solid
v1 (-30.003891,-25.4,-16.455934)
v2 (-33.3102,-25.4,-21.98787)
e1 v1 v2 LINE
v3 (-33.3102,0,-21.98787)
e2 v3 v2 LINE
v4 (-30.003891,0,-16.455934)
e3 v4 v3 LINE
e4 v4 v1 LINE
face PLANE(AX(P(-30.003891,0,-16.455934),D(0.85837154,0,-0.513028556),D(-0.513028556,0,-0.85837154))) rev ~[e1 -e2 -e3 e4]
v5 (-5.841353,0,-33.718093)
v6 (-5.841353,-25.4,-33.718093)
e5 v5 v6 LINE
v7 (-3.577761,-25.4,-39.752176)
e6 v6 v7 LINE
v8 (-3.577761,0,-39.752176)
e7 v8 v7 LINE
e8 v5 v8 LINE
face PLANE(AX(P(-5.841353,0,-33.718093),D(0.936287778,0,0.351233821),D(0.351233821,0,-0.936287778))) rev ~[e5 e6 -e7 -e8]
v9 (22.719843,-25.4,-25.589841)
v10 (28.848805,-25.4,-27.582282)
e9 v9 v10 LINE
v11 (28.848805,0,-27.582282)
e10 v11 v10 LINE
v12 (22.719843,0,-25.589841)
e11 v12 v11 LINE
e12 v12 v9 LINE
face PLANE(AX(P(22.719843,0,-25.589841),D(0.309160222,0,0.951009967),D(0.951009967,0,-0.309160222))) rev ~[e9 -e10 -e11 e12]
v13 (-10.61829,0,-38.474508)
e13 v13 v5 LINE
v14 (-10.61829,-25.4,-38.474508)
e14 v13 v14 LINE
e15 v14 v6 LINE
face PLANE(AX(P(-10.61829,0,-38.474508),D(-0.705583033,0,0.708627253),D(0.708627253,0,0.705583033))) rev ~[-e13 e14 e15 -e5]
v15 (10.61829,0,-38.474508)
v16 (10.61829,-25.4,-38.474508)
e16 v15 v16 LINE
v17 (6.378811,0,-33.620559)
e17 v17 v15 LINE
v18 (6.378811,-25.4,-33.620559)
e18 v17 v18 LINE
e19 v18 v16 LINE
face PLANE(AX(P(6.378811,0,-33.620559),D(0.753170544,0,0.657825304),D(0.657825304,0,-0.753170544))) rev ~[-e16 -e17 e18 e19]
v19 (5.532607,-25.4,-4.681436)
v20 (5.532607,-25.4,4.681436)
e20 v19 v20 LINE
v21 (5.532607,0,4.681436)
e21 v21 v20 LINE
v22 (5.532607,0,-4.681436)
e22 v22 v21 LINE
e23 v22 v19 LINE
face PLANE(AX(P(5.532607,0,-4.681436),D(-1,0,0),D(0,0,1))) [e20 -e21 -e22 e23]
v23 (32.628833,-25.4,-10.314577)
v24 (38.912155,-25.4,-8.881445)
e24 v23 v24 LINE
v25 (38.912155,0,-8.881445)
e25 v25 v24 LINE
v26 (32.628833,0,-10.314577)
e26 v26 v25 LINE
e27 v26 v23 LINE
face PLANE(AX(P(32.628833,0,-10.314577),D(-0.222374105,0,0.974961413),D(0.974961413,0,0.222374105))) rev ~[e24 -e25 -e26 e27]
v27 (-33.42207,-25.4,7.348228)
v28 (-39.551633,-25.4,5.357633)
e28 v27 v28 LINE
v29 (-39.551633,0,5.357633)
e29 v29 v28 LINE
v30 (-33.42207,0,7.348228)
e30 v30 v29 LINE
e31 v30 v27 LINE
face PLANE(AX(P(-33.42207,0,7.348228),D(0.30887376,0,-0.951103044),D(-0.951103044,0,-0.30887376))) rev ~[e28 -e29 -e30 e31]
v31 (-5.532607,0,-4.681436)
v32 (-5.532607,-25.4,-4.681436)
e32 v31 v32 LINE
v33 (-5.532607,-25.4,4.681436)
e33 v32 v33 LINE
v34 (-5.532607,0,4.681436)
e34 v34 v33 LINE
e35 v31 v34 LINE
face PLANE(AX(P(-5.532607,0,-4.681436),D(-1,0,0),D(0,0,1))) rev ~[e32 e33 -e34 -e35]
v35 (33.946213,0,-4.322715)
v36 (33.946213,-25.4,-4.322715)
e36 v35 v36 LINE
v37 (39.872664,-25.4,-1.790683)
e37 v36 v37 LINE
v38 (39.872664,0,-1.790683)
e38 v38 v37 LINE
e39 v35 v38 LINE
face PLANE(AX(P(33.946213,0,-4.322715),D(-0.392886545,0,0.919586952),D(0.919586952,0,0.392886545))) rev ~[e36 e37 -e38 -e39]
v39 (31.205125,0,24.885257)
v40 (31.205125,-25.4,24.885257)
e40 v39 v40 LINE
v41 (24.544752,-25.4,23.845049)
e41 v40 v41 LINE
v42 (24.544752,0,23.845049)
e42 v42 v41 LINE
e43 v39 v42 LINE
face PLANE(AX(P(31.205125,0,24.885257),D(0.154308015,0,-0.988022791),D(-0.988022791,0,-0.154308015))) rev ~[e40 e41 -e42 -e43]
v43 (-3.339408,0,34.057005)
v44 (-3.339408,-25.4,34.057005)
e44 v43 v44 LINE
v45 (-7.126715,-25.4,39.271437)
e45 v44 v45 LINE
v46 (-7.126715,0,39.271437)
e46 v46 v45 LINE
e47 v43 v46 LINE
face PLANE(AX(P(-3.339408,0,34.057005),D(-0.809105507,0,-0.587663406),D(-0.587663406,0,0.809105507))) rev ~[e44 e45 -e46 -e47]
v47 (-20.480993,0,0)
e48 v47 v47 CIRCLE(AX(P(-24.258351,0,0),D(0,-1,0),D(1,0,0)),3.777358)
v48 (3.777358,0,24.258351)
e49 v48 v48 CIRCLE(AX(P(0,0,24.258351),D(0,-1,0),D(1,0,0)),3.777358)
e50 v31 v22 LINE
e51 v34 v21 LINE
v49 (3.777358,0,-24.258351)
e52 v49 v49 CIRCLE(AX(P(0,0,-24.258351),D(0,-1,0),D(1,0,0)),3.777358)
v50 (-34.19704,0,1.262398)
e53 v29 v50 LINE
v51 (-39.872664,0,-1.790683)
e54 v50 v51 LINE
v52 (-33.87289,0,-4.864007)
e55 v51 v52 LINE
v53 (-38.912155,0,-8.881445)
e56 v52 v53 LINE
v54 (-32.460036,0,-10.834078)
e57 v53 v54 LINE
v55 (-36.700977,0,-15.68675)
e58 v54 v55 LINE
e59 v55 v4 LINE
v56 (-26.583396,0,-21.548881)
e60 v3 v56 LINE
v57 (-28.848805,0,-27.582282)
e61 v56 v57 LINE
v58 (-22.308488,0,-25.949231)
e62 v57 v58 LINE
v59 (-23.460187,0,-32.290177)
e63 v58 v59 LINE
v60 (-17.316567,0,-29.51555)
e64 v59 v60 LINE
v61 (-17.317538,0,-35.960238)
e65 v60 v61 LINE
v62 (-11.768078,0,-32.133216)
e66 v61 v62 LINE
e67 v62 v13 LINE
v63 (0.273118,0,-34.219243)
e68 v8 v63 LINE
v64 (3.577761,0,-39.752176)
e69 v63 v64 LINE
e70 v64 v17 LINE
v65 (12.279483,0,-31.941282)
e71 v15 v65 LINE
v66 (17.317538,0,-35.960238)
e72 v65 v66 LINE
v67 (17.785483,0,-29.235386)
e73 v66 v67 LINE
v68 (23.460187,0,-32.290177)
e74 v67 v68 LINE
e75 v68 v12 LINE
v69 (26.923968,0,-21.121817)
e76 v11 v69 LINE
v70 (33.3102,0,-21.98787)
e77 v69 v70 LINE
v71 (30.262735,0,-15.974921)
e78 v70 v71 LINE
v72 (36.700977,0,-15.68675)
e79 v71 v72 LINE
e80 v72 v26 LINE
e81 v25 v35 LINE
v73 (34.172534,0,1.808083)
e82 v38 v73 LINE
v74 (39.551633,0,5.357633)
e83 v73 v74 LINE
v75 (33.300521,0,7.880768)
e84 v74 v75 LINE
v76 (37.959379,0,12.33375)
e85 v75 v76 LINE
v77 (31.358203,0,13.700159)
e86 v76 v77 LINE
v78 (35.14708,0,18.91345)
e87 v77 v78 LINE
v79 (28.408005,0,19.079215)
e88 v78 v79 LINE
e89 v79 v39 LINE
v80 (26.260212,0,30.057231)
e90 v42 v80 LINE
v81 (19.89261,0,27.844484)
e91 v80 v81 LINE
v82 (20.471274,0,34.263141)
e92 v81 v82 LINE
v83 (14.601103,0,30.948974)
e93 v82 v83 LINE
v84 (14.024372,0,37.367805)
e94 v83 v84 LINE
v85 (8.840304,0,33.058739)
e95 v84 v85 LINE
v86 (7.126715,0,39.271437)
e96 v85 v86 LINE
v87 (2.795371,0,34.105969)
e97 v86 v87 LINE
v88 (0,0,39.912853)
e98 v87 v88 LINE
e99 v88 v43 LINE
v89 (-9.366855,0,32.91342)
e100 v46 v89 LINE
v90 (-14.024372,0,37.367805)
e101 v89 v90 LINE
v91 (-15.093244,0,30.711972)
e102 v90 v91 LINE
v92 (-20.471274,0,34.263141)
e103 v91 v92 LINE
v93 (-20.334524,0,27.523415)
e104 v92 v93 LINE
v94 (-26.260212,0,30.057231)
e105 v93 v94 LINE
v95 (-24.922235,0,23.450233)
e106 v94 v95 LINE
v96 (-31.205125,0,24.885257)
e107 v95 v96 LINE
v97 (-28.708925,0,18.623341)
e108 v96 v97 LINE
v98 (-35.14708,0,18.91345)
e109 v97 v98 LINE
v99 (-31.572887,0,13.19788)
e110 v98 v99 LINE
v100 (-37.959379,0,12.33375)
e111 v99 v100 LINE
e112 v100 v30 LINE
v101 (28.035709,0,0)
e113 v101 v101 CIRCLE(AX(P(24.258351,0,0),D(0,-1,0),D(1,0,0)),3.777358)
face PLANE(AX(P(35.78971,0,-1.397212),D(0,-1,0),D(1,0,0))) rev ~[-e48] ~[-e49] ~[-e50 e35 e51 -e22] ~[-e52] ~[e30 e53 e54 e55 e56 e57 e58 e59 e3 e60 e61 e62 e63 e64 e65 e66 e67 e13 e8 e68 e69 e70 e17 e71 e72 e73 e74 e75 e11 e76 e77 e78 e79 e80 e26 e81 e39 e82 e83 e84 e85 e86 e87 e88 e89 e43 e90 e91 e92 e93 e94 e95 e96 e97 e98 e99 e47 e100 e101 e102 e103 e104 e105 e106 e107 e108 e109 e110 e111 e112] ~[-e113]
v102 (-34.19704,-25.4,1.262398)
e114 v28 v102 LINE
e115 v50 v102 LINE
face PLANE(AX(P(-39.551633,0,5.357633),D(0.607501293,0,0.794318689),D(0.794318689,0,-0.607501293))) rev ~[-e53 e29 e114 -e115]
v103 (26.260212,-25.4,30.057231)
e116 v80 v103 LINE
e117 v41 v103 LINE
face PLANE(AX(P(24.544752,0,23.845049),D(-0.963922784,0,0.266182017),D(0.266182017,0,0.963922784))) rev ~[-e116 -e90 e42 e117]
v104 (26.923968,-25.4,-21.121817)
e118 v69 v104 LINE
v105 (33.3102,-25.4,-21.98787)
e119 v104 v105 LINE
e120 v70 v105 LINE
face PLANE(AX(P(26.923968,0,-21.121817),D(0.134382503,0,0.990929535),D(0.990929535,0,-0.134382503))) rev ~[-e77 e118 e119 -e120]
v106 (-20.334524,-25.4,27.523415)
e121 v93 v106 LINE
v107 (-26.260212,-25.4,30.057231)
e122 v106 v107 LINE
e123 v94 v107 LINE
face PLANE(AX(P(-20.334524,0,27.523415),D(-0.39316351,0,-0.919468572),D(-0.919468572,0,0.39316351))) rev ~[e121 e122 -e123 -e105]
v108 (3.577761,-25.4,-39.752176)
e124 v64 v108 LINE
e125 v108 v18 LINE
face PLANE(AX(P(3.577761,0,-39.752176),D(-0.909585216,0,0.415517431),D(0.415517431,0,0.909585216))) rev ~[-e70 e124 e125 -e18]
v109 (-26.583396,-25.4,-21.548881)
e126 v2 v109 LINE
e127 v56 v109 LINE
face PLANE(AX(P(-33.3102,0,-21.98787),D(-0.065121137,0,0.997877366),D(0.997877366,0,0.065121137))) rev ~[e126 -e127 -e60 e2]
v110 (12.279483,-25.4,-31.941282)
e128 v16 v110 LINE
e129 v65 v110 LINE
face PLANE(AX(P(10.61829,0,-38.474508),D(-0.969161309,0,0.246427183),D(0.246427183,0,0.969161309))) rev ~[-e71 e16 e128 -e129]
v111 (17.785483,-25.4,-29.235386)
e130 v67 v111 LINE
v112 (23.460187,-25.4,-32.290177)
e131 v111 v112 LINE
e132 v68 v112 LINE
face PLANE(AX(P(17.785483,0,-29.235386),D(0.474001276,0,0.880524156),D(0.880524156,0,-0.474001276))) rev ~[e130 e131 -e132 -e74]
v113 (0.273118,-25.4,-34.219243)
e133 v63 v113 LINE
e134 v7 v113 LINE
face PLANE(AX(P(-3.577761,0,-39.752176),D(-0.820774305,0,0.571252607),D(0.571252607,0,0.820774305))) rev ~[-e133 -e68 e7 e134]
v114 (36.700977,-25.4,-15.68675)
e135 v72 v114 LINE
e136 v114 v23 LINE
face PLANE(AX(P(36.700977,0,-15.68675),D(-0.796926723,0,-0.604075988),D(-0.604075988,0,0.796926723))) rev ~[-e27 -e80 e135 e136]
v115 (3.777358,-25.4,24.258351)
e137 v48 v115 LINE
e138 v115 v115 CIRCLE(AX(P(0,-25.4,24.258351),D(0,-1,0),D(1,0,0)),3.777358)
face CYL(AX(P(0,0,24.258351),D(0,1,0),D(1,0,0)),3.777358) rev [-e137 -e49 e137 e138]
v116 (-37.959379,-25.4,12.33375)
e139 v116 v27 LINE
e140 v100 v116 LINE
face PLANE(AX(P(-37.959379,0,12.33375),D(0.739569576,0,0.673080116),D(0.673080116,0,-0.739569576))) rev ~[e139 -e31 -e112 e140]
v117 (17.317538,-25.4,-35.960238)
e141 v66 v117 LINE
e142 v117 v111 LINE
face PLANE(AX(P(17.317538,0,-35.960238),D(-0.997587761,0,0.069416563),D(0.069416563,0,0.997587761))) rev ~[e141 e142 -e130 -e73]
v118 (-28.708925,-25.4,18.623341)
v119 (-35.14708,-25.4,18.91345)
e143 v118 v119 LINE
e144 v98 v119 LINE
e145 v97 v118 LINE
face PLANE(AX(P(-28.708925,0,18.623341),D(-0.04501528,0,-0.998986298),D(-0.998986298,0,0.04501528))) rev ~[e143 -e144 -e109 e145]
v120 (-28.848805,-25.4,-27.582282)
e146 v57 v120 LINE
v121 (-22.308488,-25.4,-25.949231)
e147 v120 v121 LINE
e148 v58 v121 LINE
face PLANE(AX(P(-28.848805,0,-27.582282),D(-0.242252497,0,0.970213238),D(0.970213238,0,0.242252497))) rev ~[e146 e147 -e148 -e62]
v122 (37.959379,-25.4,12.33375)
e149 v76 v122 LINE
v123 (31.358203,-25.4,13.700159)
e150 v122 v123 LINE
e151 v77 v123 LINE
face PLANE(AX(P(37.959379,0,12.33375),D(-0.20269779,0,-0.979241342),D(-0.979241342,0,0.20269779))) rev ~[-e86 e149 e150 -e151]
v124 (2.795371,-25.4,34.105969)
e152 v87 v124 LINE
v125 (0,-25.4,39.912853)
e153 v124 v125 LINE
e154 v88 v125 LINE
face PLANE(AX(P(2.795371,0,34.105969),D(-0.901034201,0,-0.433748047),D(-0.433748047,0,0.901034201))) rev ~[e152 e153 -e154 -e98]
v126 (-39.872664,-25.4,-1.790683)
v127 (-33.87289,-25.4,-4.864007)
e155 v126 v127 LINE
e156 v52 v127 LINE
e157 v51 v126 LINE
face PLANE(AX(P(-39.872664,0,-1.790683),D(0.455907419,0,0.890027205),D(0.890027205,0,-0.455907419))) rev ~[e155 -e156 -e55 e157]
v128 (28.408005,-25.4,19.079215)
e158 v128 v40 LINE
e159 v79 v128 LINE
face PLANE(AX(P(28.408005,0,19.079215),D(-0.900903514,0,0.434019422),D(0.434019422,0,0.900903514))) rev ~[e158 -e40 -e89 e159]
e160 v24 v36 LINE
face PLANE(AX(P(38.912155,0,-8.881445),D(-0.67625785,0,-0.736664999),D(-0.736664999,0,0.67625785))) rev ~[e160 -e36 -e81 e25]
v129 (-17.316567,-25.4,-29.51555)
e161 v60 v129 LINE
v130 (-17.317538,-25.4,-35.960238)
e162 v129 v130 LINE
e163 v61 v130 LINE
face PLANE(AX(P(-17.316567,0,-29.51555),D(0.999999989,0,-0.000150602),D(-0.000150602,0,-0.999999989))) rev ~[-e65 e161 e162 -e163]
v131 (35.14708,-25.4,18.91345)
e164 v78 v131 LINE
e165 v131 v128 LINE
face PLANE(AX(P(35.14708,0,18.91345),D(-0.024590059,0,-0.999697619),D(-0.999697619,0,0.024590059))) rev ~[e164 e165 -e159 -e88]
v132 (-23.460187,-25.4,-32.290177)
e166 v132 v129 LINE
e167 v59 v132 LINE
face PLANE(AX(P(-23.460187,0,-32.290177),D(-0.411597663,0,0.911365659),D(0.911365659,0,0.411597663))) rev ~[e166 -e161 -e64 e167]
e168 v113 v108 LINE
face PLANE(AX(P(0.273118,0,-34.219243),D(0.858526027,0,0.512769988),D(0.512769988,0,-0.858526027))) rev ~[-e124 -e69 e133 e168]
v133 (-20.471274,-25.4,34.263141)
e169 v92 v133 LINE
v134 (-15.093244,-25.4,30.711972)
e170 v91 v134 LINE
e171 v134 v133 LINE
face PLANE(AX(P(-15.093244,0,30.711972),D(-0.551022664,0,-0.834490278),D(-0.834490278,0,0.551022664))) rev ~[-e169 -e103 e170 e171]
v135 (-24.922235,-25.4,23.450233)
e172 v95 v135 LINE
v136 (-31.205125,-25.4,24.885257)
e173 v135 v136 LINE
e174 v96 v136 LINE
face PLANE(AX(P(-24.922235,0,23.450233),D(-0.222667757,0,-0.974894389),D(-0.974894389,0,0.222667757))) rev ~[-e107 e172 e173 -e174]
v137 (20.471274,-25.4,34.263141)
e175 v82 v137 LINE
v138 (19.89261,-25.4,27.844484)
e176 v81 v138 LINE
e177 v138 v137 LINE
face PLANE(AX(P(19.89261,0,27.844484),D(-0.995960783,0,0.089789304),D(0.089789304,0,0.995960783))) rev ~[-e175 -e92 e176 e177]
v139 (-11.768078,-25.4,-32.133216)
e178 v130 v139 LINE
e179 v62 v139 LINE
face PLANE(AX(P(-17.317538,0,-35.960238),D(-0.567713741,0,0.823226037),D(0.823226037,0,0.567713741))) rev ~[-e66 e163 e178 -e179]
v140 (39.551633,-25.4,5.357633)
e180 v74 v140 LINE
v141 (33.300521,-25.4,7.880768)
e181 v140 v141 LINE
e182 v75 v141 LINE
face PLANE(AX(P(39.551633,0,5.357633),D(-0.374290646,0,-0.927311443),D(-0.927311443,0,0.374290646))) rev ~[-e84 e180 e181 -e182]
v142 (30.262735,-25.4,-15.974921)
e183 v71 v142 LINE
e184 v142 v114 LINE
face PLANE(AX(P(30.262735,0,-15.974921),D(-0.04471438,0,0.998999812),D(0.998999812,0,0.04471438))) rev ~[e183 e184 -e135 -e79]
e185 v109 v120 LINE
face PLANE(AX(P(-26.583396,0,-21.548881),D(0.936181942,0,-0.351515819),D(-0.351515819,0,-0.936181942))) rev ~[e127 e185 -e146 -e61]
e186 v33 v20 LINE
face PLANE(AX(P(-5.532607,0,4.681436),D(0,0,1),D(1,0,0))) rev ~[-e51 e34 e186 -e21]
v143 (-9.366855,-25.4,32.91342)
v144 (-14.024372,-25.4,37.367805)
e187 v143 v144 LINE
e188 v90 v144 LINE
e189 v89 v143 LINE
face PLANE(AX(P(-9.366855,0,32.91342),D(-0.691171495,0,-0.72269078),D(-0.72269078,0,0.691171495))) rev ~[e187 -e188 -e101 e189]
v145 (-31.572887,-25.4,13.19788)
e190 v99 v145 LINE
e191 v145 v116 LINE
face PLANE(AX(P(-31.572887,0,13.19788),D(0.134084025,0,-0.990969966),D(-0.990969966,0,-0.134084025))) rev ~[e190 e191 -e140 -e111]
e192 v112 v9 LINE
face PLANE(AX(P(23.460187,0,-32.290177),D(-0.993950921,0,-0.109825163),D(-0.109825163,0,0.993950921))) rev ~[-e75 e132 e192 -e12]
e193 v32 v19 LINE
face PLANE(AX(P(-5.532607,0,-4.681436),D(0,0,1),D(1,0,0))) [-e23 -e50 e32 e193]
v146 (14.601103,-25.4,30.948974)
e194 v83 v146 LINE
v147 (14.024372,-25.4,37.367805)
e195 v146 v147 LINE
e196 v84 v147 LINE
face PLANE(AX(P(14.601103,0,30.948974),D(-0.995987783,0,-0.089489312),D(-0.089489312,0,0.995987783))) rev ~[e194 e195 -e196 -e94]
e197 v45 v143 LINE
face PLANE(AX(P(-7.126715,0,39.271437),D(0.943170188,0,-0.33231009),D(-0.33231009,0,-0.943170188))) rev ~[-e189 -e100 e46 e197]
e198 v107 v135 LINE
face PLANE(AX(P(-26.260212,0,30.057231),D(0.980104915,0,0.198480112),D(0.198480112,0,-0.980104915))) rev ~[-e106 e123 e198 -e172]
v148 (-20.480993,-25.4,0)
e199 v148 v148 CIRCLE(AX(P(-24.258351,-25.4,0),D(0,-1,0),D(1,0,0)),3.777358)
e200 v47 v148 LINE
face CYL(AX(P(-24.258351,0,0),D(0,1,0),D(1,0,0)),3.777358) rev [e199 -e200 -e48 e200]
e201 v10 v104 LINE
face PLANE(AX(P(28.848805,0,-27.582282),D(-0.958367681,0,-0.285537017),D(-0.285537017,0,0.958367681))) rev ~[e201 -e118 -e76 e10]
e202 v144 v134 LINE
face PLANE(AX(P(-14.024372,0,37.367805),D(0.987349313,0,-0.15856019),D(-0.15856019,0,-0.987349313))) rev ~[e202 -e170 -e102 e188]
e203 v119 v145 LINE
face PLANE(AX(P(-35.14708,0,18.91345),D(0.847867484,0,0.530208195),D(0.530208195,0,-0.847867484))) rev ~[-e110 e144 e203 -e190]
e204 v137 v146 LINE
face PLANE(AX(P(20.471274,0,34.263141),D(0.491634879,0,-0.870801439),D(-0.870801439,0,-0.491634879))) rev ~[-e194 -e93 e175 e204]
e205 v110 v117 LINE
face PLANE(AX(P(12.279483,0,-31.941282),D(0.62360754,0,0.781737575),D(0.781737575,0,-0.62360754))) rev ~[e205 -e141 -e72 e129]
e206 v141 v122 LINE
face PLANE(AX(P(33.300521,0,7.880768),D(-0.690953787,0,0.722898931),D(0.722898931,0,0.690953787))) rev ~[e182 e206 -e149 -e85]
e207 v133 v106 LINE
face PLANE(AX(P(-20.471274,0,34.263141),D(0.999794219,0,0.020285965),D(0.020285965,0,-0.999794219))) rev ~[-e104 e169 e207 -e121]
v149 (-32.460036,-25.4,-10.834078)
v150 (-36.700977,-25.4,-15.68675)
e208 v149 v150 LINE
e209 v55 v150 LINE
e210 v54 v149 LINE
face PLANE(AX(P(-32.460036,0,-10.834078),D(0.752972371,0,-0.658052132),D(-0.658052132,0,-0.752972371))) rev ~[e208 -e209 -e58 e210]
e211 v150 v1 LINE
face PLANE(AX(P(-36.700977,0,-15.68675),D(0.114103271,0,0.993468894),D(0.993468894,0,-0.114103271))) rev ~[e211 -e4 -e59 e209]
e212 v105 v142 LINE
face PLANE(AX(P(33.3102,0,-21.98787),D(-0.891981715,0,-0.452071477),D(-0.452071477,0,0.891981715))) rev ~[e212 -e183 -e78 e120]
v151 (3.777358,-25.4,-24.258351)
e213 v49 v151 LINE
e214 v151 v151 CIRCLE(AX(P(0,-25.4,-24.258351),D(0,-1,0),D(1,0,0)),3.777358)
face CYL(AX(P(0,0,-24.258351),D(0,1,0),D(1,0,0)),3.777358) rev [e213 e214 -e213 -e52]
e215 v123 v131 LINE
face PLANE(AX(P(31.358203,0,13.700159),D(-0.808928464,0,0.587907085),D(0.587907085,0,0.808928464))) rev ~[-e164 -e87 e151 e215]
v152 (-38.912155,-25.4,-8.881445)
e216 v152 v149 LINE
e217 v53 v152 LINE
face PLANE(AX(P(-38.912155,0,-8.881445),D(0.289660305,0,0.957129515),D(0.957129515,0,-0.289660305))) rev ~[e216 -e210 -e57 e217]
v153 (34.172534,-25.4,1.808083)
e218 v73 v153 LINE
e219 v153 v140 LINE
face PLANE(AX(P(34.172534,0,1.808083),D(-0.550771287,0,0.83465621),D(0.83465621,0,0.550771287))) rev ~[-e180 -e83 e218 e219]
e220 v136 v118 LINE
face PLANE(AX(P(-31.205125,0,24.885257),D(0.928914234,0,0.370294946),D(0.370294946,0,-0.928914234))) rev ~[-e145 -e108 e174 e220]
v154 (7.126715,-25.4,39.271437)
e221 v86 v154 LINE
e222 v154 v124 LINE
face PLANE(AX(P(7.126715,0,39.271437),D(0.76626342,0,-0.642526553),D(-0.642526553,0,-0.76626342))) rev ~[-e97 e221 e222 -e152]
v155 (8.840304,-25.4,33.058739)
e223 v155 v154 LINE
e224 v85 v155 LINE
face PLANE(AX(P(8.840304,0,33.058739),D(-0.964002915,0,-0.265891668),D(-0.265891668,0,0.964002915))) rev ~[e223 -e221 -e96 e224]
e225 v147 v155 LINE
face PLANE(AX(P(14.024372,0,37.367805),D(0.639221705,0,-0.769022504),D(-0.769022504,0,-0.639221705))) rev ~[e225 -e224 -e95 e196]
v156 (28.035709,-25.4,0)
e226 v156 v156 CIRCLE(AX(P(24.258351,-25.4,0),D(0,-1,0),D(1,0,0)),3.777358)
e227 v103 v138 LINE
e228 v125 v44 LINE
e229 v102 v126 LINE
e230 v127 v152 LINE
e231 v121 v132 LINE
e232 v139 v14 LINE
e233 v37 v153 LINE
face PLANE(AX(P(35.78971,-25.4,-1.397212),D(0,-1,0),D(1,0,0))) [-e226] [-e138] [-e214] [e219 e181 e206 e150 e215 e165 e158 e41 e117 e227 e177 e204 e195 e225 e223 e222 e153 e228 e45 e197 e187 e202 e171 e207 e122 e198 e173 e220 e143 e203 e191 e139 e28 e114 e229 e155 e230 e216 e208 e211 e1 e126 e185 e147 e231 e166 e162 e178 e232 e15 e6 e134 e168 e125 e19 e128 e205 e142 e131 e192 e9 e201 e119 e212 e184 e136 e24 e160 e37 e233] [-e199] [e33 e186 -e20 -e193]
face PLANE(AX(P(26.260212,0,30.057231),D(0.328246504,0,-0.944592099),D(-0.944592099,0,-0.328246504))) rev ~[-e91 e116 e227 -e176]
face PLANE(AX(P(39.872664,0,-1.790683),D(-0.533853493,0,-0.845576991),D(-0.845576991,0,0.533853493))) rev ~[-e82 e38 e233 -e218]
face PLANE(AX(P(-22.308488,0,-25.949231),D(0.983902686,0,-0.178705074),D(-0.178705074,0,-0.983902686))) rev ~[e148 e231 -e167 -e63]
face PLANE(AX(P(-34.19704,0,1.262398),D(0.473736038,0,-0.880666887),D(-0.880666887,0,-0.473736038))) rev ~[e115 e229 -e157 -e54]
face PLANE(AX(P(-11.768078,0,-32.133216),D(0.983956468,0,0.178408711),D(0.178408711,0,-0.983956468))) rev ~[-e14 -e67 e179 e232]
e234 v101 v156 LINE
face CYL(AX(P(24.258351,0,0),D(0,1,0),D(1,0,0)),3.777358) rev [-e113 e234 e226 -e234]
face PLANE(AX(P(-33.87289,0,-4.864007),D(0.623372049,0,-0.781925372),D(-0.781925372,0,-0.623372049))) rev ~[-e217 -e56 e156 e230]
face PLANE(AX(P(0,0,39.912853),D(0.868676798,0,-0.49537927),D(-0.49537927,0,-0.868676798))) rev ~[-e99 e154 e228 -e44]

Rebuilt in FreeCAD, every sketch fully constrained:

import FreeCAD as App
import Part
import Sketcher
from FreeCAD import Vector
Q = App.Units.Quantity

doc = App.newDocument("Part")
params = doc.addObject("Spreadsheet::Sheet", "Params")
for row, (alias, value) in enumerate([
    ("pad1_length", "1 in"),
], start=1):
    params.set(f"A{row}", alias)
    params.set(f"B{row}", "=" + value)
    params.setAlias(f"B{row}", alias)

body = doc.addObject("PartDesign::Body", "Body")

# Sketch on XZ plane
sketch1 = body.newObject("Sketcher::SketchObject", "Sketch")
sketch1.AttachmentSupport = (doc.getObject("XZ_Plane"), [""])
sketch1.MapMode = "FlatFace"
sketch1.addGeometry([
    Part.LineSegment(Vector(-39.6, 5.4, 0), Vector(-34.2, 1.3, 0)),  # 0
    Part.LineSegment(Vector(-34.2, 1.3, 0), Vector(-39.9, -1.8, 0)),  # 1
    Part.LineSegment(Vector(-39.9, -1.8, 0), Vector(-33.9, -4.9, 0)),  # 2
    Part.LineSegment(Vector(-33.9, -4.9, 0), Vector(-38.9, -8.9, 0)),  # 3
    Part.LineSegment(Vector(-38.9, -8.9, 0), Vector(-32.5, -10.8, 0)),  # 4
    Part.LineSegment(Vector(-32.5, -10.8, 0), Vector(-36.7, -15.7, 0)),  # 5
    Part.LineSegment(Vector(-36.7, -15.7, 0), Vector(-30, -16.5, 0)),  # 6
    Part.LineSegment(Vector(-30, -16.5, 0), Vector(-33.3, -22, 0)),  # 7
    Part.LineSegment(Vector(-33.3, -22, 0), Vector(-26.6, -21.5, 0)),  # 8
    Part.LineSegment(Vector(-26.6, -21.5, 0), Vector(-28.8, -27.6, 0)),  # 9
    Part.LineSegment(Vector(-28.8, -27.6, 0), Vector(-22.3, -25.9, 0)),  # 10
    Part.LineSegment(Vector(-22.3, -25.9, 0), Vector(-23.5, -32.3, 0)),  # 11
    Part.LineSegment(Vector(-23.5, -32.3, 0), Vector(-17.3, -29.5, 0)),  # 12
    Part.LineSegment(Vector(-17.3, -29.5, 0), Vector(-17.3, -36, 0)),  # 13
    Part.LineSegment(Vector(-17.3, -36, 0), Vector(-11.8, -32.1, 0)),  # 14
    Part.LineSegment(Vector(-11.8, -32.1, 0), Vector(-10.6, -38.5, 0)),  # 15
    Part.LineSegment(Vector(-10.6, -38.5, 0), Vector(-5.8, -33.7, 0)),  # 16
    Part.LineSegment(Vector(-5.8, -33.7, 0), Vector(-3.6, -39.8, 0)),  # 17
    Part.LineSegment(Vector(-3.6, -39.8, 0), Vector(0.3, -34.2, 0)),  # 18
    Part.LineSegment(Vector(0.3, -34.2, 0), Vector(3.6, -39.8, 0)),  # 19
    Part.LineSegment(Vector(3.6, -39.8, 0), Vector(6.4, -33.6, 0)),  # 20
    Part.LineSegment(Vector(6.4, -33.6, 0), Vector(10.6, -38.5, 0)),  # 21
    Part.LineSegment(Vector(10.6, -38.5, 0), Vector(12.3, -31.9, 0)),  # 22
    Part.LineSegment(Vector(12.3, -31.9, 0), Vector(17.3, -36, 0)),  # 23
    Part.LineSegment(Vector(17.3, -36, 0), Vector(17.8, -29.2, 0)),  # 24
    Part.LineSegment(Vector(17.8, -29.2, 0), Vector(23.5, -32.3, 0)),  # 25
    Part.LineSegment(Vector(23.5, -32.3, 0), Vector(22.7, -25.6, 0)),  # 26
    Part.LineSegment(Vector(22.7, -25.6, 0), Vector(28.8, -27.6, 0)),  # 27
    Part.LineSegment(Vector(28.8, -27.6, 0), Vector(26.9, -21.1, 0)),  # 28
    Part.LineSegment(Vector(26.9, -21.1, 0), Vector(33.3, -22, 0)),  # 29
    Part.LineSegment(Vector(33.3, -22, 0), Vector(30.3, -16, 0)),  # 30
    Part.LineSegment(Vector(30.3, -16, 0), Vector(36.7, -15.7, 0)),  # 31
    Part.LineSegment(Vector(36.7, -15.7, 0), Vector(32.6, -10.3, 0)),  # 32
    Part.LineSegment(Vector(32.6, -10.3, 0), Vector(38.9, -8.9, 0)),  # 33
    Part.LineSegment(Vector(38.9, -8.9, 0), Vector(33.9, -4.3, 0)),  # 34
    Part.LineSegment(Vector(33.9, -4.3, 0), Vector(39.9, -1.8, 0)),  # 35
    Part.LineSegment(Vector(39.9, -1.8, 0), Vector(34.2, 1.8, 0)),  # 36
    Part.LineSegment(Vector(34.2, 1.8, 0), Vector(39.6, 5.4, 0)),  # 37
    Part.LineSegment(Vector(39.6, 5.4, 0), Vector(33.3, 7.9, 0)),  # 38
    Part.LineSegment(Vector(33.3, 7.9, 0), Vector(38, 12.3, 0)),  # 39
    Part.LineSegment(Vector(38, 12.3, 0), Vector(31.4, 13.7, 0)),  # 40
    Part.LineSegment(Vector(31.4, 13.7, 0), Vector(35.1, 18.9, 0)),  # 41
    Part.LineSegment(Vector(35.1, 18.9, 0), Vector(28.4, 19.1, 0)),  # 42
    Part.LineSegment(Vector(28.4, 19.1, 0), Vector(31.2, 24.9, 0)),  # 43
    Part.LineSegment(Vector(31.2, 24.9, 0), Vector(24.5, 23.8, 0)),  # 44
    Part.LineSegment(Vector(24.5, 23.8, 0), Vector(26.3, 30.1, 0)),  # 45
    Part.LineSegment(Vector(26.3, 30.1, 0), Vector(19.9, 27.8, 0)),  # 46
    Part.LineSegment(Vector(19.9, 27.8, 0), Vector(20.5, 34.3, 0)),  # 47
    Part.LineSegment(Vector(20.5, 34.3, 0), Vector(14.6, 30.9, 0)),  # 48
    Part.LineSegment(Vector(14.6, 30.9, 0), Vector(14, 37.4, 0)),  # 49
    Part.LineSegment(Vector(14, 37.4, 0), Vector(8.8, 33.1, 0)),  # 50
    Part.LineSegment(Vector(8.8, 33.1, 0), Vector(7.1, 39.3, 0)),  # 51
    Part.LineSegment(Vector(7.1, 39.3, 0), Vector(2.8, 34.1, 0)),  # 52
    Part.LineSegment(Vector(2.8, 34.1, 0), Vector(0, 39.9, 0)),  # 53
    Part.LineSegment(Vector(0, 39.9, 0), Vector(-3.3, 34.1, 0)),  # 54
    Part.LineSegment(Vector(-3.3, 34.1, 0), Vector(-7.1, 39.3, 0)),  # 55
    Part.LineSegment(Vector(-7.1, 39.3, 0), Vector(-9.4, 32.9, 0)),  # 56
    Part.LineSegment(Vector(-9.4, 32.9, 0), Vector(-14, 37.4, 0)),  # 57
    Part.LineSegment(Vector(-14, 37.4, 0), Vector(-15.1, 30.7, 0)),  # 58
    Part.LineSegment(Vector(-15.1, 30.7, 0), Vector(-20.5, 34.3, 0)),  # 59
    Part.LineSegment(Vector(-20.5, 34.3, 0), Vector(-20.3, 27.5, 0)),  # 60
    Part.LineSegment(Vector(-20.3, 27.5, 0), Vector(-26.3, 30.1, 0)),  # 61
    Part.LineSegment(Vector(-26.3, 30.1, 0), Vector(-24.9, 23.5, 0)),  # 62
    Part.LineSegment(Vector(-24.9, 23.5, 0), Vector(-31.2, 24.9, 0)),  # 63
    Part.LineSegment(Vector(-31.2, 24.9, 0), Vector(-28.7, 18.6, 0)),  # 64
    Part.LineSegment(Vector(-28.7, 18.6, 0), Vector(-35.1, 18.9, 0)),  # 65
    Part.LineSegment(Vector(-35.1, 18.9, 0), Vector(-31.6, 13.2, 0)),  # 66
    Part.LineSegment(Vector(-31.6, 13.2, 0), Vector(-38, 12.3, 0)),  # 67
    Part.LineSegment(Vector(-38, 12.3, 0), Vector(-33.4, 7.3, 0)),  # 68
    Part.LineSegment(Vector(-33.4, 7.3, 0), Vector(-39.6, 5.4, 0)),  # 69
    Part.Circle(Vector(0, -24.3, 0), Vector(0, 0, 1), 3.8),  # 70
    Part.Circle(Vector(-24.3, 0, 0), Vector(0, 0, 1), 3.8),  # 71
    Part.LineSegment(Vector(5.5, -4.7, 0), Vector(-5.5, -4.7, 0)),  # 72
    Part.LineSegment(Vector(-5.5, -4.7, 0), Vector(-5.5, 4.7, 0)),  # 73
    Part.LineSegment(Vector(-5.5, 4.7, 0), Vector(5.5, 4.7, 0)),  # 74
    Part.LineSegment(Vector(5.5, 4.7, 0), Vector(5.5, -4.7, 0)),  # 75
    Part.Circle(Vector(24.3, 0, 0), Vector(0, 0, 1), 3.8),  # 76
    Part.Circle(Vector(0, 24.3, 0), Vector(0, 0, 1), 3.8),  # 77
], False)
sketch1.addConstraint([
    Sketcher.Constraint("Coincident", 0, 2, 1, 1),
    Sketcher.Constraint("Coincident", 1, 2, 2, 1),
    Sketcher.Constraint("Coincident", 2, 2, 3, 1),
    Sketcher.Constraint("Coincident", 3, 2, 4, 1),
    Sketcher.Constraint("Coincident", 4, 2, 5, 1),
    Sketcher.Constraint("Coincident", 5, 2, 6, 1),
    Sketcher.Constraint("Coincident", 6, 2, 7, 1),
    Sketcher.Constraint("Coincident", 7, 2, 8, 1),
    Sketcher.Constraint("Coincident", 8, 2, 9, 1),
    Sketcher.Constraint("Coincident", 9, 2, 10, 1),
    Sketcher.Constraint("Coincident", 10, 2, 11, 1),
    Sketcher.Constraint("Coincident", 11, 2, 12, 1),
    Sketcher.Constraint("Coincident", 12, 2, 13, 1),
    Sketcher.Constraint("Coincident", 13, 2, 14, 1),
    Sketcher.Constraint("Coincident", 14, 2, 15, 1),
    Sketcher.Constraint("Coincident", 15, 2, 16, 1),
    Sketcher.Constraint("Coincident", 16, 2, 17, 1),
    Sketcher.Constraint("Coincident", 17, 2, 18, 1),
    Sketcher.Constraint("Coincident", 18, 2, 19, 1),
    Sketcher.Constraint("Coincident", 19, 2, 20, 1),
    Sketcher.Constraint("Coincident", 20, 2, 21, 1),
    Sketcher.Constraint("Coincident", 21, 2, 22, 1),
    Sketcher.Constraint("Coincident", 22, 2, 23, 1),
    Sketcher.Constraint("Coincident", 23, 2, 24, 1),
    Sketcher.Constraint("Coincident", 24, 2, 25, 1),
    Sketcher.Constraint("Coincident", 25, 2, 26, 1),
    Sketcher.Constraint("Coincident", 26, 2, 27, 1),
    Sketcher.Constraint("Coincident", 27, 2, 28, 1),
    Sketcher.Constraint("Coincident", 28, 2, 29, 1),
    Sketcher.Constraint("Coincident", 29, 2, 30, 1),
    Sketcher.Constraint("Coincident", 30, 2, 31, 1),
    Sketcher.Constraint("Coincident", 31, 2, 32, 1),
    Sketcher.Constraint("Coincident", 32, 2, 33, 1),
    Sketcher.Constraint("Coincident", 33, 2, 34, 1),
    Sketcher.Constraint("Coincident", 34, 2, 35, 1),
    Sketcher.Constraint("Coincident", 35, 2, 36, 1),
    Sketcher.Constraint("Coincident", 36, 2, 37, 1),
    Sketcher.Constraint("Coincident", 37, 2, 38, 1),
    Sketcher.Constraint("Coincident", 38, 2, 39, 1),
    Sketcher.Constraint("Coincident", 39, 2, 40, 1),
    Sketcher.Constraint("Coincident", 40, 2, 41, 1),
    Sketcher.Constraint("Coincident", 41, 2, 42, 1),
    Sketcher.Constraint("Coincident", 42, 2, 43, 1),
    Sketcher.Constraint("Coincident", 43, 2, 44, 1),
    Sketcher.Constraint("Coincident", 44, 2, 45, 1),
    Sketcher.Constraint("Coincident", 45, 2, 46, 1),
    Sketcher.Constraint("Coincident", 46, 2, 47, 1),
    Sketcher.Constraint("Coincident", 47, 2, 48, 1),
    Sketcher.Constraint("Coincident", 48, 2, 49, 1),
    Sketcher.Constraint("Coincident", 49, 2, 50, 1),
    Sketcher.Constraint("Coincident", 50, 2, 51, 1),
    Sketcher.Constraint("Coincident", 51, 2, 52, 1),
    Sketcher.Constraint("Coincident", 52, 2, 53, 1),
    Sketcher.Constraint("Coincident", 53, 2, 54, 1),
    Sketcher.Constraint("Coincident", 54, 2, 55, 1),
    Sketcher.Constraint("Coincident", 55, 2, 56, 1),
    Sketcher.Constraint("Coincident", 56, 2, 57, 1),
    Sketcher.Constraint("Coincident", 57, 2, 58, 1),
    Sketcher.Constraint("Coincident", 58, 2, 59, 1),
    Sketcher.Constraint("Coincident", 59, 2, 60, 1),
    Sketcher.Constraint("Coincident", 60, 2, 61, 1),
    Sketcher.Constraint("Coincident", 61, 2, 62, 1),
    Sketcher.Constraint("Coincident", 62, 2, 63, 1),
    Sketcher.Constraint("Coincident", 63, 2, 64, 1),
    Sketcher.Constraint("Coincident", 64, 2, 65, 1),
    Sketcher.Constraint("Coincident", 65, 2, 66, 1),
    Sketcher.Constraint("Coincident", 66, 2, 67, 1),
    Sketcher.Constraint("Coincident", 67, 2, 68, 1),
    Sketcher.Constraint("Coincident", 68, 2, 69, 1),
    Sketcher.Constraint("Coincident", 69, 2, 0, 1),
    Sketcher.Constraint("Coincident", 72, 2, 73, 1),
    Sketcher.Constraint("Coincident", 73, 2, 74, 1),
    Sketcher.Constraint("Coincident", 74, 2, 75, 1),
    Sketcher.Constraint("Coincident", 75, 2, 72, 1),
    Sketcher.Constraint("Horizontal", 72),
    Sketcher.Constraint("Vertical", 73),
    Sketcher.Constraint("Horizontal", 74),
    Sketcher.Constraint("Vertical", 75),
    Sketcher.Constraint("Equal", 70, 71),
    Sketcher.Constraint("Equal", 71, 76),
    Sketcher.Constraint("Equal", 76, 77),
    Sketcher.Constraint("Symmetric", 71, 3, 76, 3, -1, 1),
    Sketcher.Constraint("Symmetric", 70, 3, 77, 3, -1, 1),
    Sketcher.Constraint("Symmetric", 72, 2, 74, 2, -1, 1),
    Sketcher.Constraint("Symmetric", 17, 2, 19, 2, -2),
    Sketcher.Constraint("Symmetric", 15, 2, 21, 2, -2),
    Sketcher.Constraint("Symmetric", 13, 2, 23, 2, -2),
    Sketcher.Constraint("Symmetric", 11, 2, 25, 2, -2),
    Sketcher.Constraint("Symmetric", 9, 2, 27, 2, -2),
    Sketcher.Constraint("Symmetric", 7, 2, 29, 2, -2),
    Sketcher.Constraint("Symmetric", 5, 2, 31, 2, -2),
    Sketcher.Constraint("Symmetric", 3, 2, 33, 2, -2),
    Sketcher.Constraint("Symmetric", 1, 2, 35, 2, -2),
    Sketcher.Constraint("Symmetric", 51, 2, 55, 2, -2),
    Sketcher.Constraint("Symmetric", 49, 2, 57, 2, -2),
    Sketcher.Constraint("Symmetric", 47, 2, 59, 2, -2),
    Sketcher.Constraint("Symmetric", 45, 2, 61, 2, -2),
    Sketcher.Constraint("Symmetric", 43, 2, 63, 2, -2),
    Sketcher.Constraint("Symmetric", 41, 2, 65, 2, -2),
    Sketcher.Constraint("Symmetric", 39, 2, 67, 2, -2),
    Sketcher.Constraint("Symmetric", 37, 2, 69, 2, -2),
    Sketcher.Constraint("PointOnObject", 70, 3, -2),
    Sketcher.Constraint("PointOnObject", 71, 3, -1),
    Sketcher.Constraint("PointOnObject", 53, 2, -2),
    Sketcher.Constraint("Equal", 0, 2),
    Sketcher.Constraint("Equal", 1, 3),
    Sketcher.Constraint("Equal", 2, 4),
    Sketcher.Constraint("Equal", 3, 5),
    Sketcher.Constraint("Equal", 4, 6),
    Sketcher.Constraint("Equal", 5, 7),
    Sketcher.Constraint("Equal", 6, 8),
    Sketcher.Constraint("Equal", 7, 9),
    Sketcher.Constraint("Equal", 8, 10),
    Sketcher.Constraint("Equal", 9, 11),
    Sketcher.Constraint("Equal", 10, 12),
    Sketcher.Constraint("Equal", 11, 13),
    Sketcher.Constraint("Equal", 12, 14),
    Sketcher.Constraint("Equal", 13, 15),
    Sketcher.Constraint("Equal", 14, 16),
    Sketcher.Constraint("Equal", 15, 17),
    Sketcher.Constraint("Equal", 16, 18),
    Sketcher.Constraint("Equal", 17, 19),
    Sketcher.Constraint("Equal", 18, 20),
    Sketcher.Constraint("Equal", 19, 21),
    Sketcher.Constraint("Equal", 20, 22),
    Sketcher.Constraint("Equal", 21, 23),
    Sketcher.Constraint("Equal", 22, 24),
    Sketcher.Constraint("Equal", 23, 25),
    Sketcher.Constraint("Equal", 24, 26),
    Sketcher.Constraint("Equal", 25, 27),
    Sketcher.Constraint("Equal", 26, 28),
    Sketcher.Constraint("Equal", 27, 29),
    Sketcher.Constraint("Equal", 28, 30),
    Sketcher.Constraint("Equal", 29, 31),
    Sketcher.Constraint("Equal", 30, 32),
    Sketcher.Constraint("Equal", 31, 33),
    Sketcher.Constraint("Equal", 32, 34),
    Sketcher.Constraint("Equal", 33, 35),
    Sketcher.Constraint("Equal", 34, 36),
    Sketcher.Constraint("Equal", 35, 37),
    Sketcher.Constraint("Equal", 36, 38),
    Sketcher.Constraint("Equal", 37, 39),
    Sketcher.Constraint("Equal", 38, 40),
    Sketcher.Constraint("Equal", 39, 41),
    Sketcher.Constraint("Equal", 40, 42),
    Sketcher.Constraint("Equal", 41, 43),
    Sketcher.Constraint("Equal", 42, 44),
    Sketcher.Constraint("Equal", 43, 45),
    Sketcher.Constraint("Equal", 44, 46),
    Sketcher.Constraint("Equal", 45, 47),
    Sketcher.Constraint("Equal", 46, 48),
    Sketcher.Constraint("Equal", 47, 49),
    Sketcher.Constraint("Equal", 48, 50),
    Sketcher.Constraint("Equal", 49, 51),
    Sketcher.Constraint("Equal", 50, 52),
    Sketcher.Constraint("Equal", 51, 53),
    Sketcher.Constraint("Equal", 52, 54),
    Sketcher.Constraint("Equal", 53, 55),
    Sketcher.Constraint("Equal", 54, 56),
    Sketcher.Constraint("Equal", 55, 57),
    Sketcher.Constraint("Equal", 56, 58),
    Sketcher.Constraint("Equal", 57, 59),
    Sketcher.Constraint("Equal", 58, 60),
    Sketcher.Constraint("Equal", 59, 61),
    Sketcher.Constraint("Equal", 60, 62),
    Sketcher.Constraint("Equal", 61, 63),
    Sketcher.Constraint("Equal", 62, 64),
    Sketcher.Constraint("Equal", 63, 65),
    Sketcher.Constraint("Equal", 64, 66),
    Sketcher.Constraint("Equal", 65, 67),
    Sketcher.Constraint("Equal", 66, 68),
    Sketcher.Constraint("Equal", 67, 69),
    Sketcher.Constraint("Diameter", 70, Q("7.554716 mm")),
    Sketcher.Constraint("DistanceX", 7, 2, -1, 1, Q("33.3102 mm")),
    Sketcher.Constraint("Distance", 1, Q("6.444688 mm")),
    Sketcher.Constraint("DistanceX", 72, 2, 72, 1, Q("11.065214 mm")),
    Sketcher.Constraint("DistanceY", 73, 1, 73, 2, Q("9.362873 mm")),
    Sketcher.Constraint("DistanceY", 70, 3, -1, 1, Q("24.258351 mm")),
    Sketcher.Constraint("DistanceX", 71, 3, -1, 1, Q("24.258351 mm")),
    Sketcher.Constraint("DistanceX", 0, 2, -1, 1, Q("34.19704 mm")),
    Sketcher.Constraint("DistanceX", 2, 2, -1, 1, Q("33.87289 mm")),
    Sketcher.Constraint("DistanceY", 4, 2, -1, 1, Q("10.834078 mm")),
    Sketcher.Constraint("DistanceY", 5, 2, -1, 1, Q("15.68675 mm")),
    Sketcher.Constraint("DistanceX", 6, 2, -1, 1, Q("30.003891 mm")),
    Sketcher.Constraint("DistanceY", 7, 2, -1, 1, Q("21.98787 mm")),
    Sketcher.Constraint("DistanceY", 8, 2, -1, 1, Q("21.548881 mm")),
    Sketcher.Constraint("DistanceX", 10, 2, -1, 1, Q("22.308488 mm")),
    Sketcher.Constraint("DistanceY", 10, 2, -1, 1, Q("25.949231 mm")),
    Sketcher.Constraint("DistanceY", 12, 2, -1, 1, Q("29.51555 mm")),
    Sketcher.Constraint("DistanceX", 13, 2, -1, 1, Q("17.317538 mm")),
    Sketcher.Constraint("DistanceX", 14, 2, -1, 1, Q("11.768078 mm")),
    Sketcher.Constraint("DistanceX", 15, 2, -1, 1, Q("10.61829 mm")),
    Sketcher.Constraint("DistanceY", 15, 2, -1, 1, Q("38.474508 mm")),
    Sketcher.Constraint("DistanceX", 17, 2, -1, 1, Q("3.577761 mm")),
    Sketcher.Constraint("DistanceX", -1, 1, 20, 2, Q("6.378811 mm")),
    Sketcher.Constraint("DistanceY", 26, 2, -1, 1, Q("25.589841 mm")),
    Sketcher.Constraint("DistanceX", -1, 1, 38, 2, Q("33.300521 mm")),
    Sketcher.Constraint("DistanceY", -1, 1, 38, 2, Q("7.880768 mm")),
    Sketcher.Constraint("DistanceX", -1, 1, 39, 2, Q("37.959379 mm")),
    Sketcher.Constraint("DistanceY", -1, 1, 40, 2, Q("13.700159 mm")),
    Sketcher.Constraint("DistanceX", -1, 1, 41, 2, Q("35.14708 mm")),
    Sketcher.Constraint("DistanceX", -1, 1, 44, 2, Q("24.544752 mm")),
    Sketcher.Constraint("DistanceY", -1, 1, 44, 2, Q("23.845049 mm")),
    Sketcher.Constraint("DistanceX", -1, 1, 45, 2, Q("26.260212 mm")),
    Sketcher.Constraint("DistanceX", -1, 1, 46, 2, Q("19.89261 mm")),
    Sketcher.Constraint("DistanceY", -1, 1, 47, 2, Q("34.263141 mm")),
    Sketcher.Constraint("DistanceX", -1, 1, 49, 2, Q("14.024372 mm")),
    Sketcher.Constraint("DistanceY", -1, 1, 50, 2, Q("33.058739 mm")),
    Sketcher.Constraint("DistanceX", -1, 1, 52, 2, Q("2.795371 mm")),
    Sketcher.Constraint("DistanceY", -1, 1, 52, 2, Q("34.105969 mm")),
    Sketcher.Constraint("DistanceY", -1, 1, 56, 2, Q("32.91342 mm")),
    Sketcher.Constraint("DistanceY", -1, 1, 64, 2, Q("18.623341 mm")),
    Sketcher.Constraint("DistanceX", 68, 2, -1, 1, Q("33.42207 mm")),
    Sketcher.Constraint("DistanceX", 1, 2, -1, 1, Q("39.872664 mm")),
])
pad1 = body.newObject("PartDesign::Pad", "Pad")
pad1.Profile = sketch1
pad1.setExpression("Length", "Params.pad1_length")

doc.recompute()
